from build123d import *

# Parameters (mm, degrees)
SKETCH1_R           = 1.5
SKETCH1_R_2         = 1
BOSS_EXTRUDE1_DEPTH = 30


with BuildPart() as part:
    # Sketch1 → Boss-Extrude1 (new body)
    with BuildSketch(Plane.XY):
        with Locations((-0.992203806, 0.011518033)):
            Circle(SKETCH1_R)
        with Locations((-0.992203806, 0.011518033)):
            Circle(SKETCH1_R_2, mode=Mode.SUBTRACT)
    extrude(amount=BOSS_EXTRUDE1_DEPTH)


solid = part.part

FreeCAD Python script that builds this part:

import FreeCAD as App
import Part
import Sketcher

V = App.Vector

doc = App.newDocument("Part")
body = doc.addObject("PartDesign::Body", "Body")

# Sketch on XY plane
sketch1 = body.newObject("Sketcher::SketchObject", "Sketch")
sketch1.AttachmentSupport = (doc.getObject("XY_Plane"), [""])
sketch1.MapMode = "FlatFace"
sketch1.addGeometry([
    Part.Circle(V(-1, 0, 0), V(0, 0, 1), 1.5),
    Part.Circle(V(-1, 0, 0), V(0, 0, 1), 1),
], False)
sketch1.addConstraint([
    Sketcher.Constraint("Coincident", 1, 3, 0, 3),
    Sketcher.Constraint("Diameter", 0, 3.0),
    Sketcher.Constraint("Diameter", 1, 2.0),
    Sketcher.Constraint("DistanceY", -1, 1, 0, 3, 0.011518),
    Sketcher.Constraint("DistanceX", 0, 3, -1, 1, 0.992204),
])
pad1 = body.newObject("PartDesign::Pad", "Pad")
pad1.Profile = sketch1
pad1.Length = 30

doc.recompute()
